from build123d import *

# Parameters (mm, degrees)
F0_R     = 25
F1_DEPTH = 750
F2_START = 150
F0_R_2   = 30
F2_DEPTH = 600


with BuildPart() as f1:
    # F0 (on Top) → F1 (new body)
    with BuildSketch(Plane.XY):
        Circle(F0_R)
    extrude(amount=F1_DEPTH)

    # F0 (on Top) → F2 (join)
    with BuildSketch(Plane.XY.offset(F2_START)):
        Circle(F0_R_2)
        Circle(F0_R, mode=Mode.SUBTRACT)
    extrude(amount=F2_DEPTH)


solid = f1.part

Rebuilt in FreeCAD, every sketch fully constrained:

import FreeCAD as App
import Part
import Sketcher

V = App.Vector

doc = App.newDocument("Part")
body = doc.addObject("PartDesign::Body", "Body")

# Sketch on XY plane
sketch1 = doc.addObject("Sketcher::SketchObject", "Sketch")
body.addObject(sketch1)
sketch1.AttachmentSupport = (doc.XY_Plane, [""])
sketch1.MapMode = "FlatFace"
sketch1.addGeometry(Part.Circle(V(0, 0, 0), V(0, 0, 1), 25), False)
sketch1.addConstraint([
    Sketcher.Constraint("Coincident", 0, 3, -1, 1),
    Sketcher.Constraint("Diameter", 0, 50.0),
])
pad1 = doc.addObject("PartDesign::Pad", "Pad")
body.addObject(pad1)
pad1.Profile = sketch1
pad1.Length = 750

# Sketch on XY plane
sketch2 = doc.addObject("Sketcher::SketchObject", "Sketch001")
body.addObject(sketch2)
sketch2.AttachmentSupport = (doc.XY_Plane, [""])
sketch2.MapMode = "FlatFace"
sketch2.AttachmentOffset = App.Placement(V(0, 0, 150), App.Rotation())
sketch2.addGeometry([
    Part.Circle(V(0, 0, 0), V(0, 0, 1), 30),
    Part.Circle(V(0, 0, 0), V(0, 0, 1), 25),
], False)
sketch2.addConstraint([
    Sketcher.Constraint("Coincident", 0, 3, -1, 1),
    Sketcher.Constraint("Coincident", 1, 3, -1, 1),
    Sketcher.Constraint("Diameter", 0, 60.0),
    Sketcher.Constraint("Diameter", 1, 50.0),
])
pad2 = doc.addObject("PartDesign::Pad", "Pad001")
body.addObject(pad2)
pad2.Profile = sketch2
pad2.Length = 600

doc.recompute()
